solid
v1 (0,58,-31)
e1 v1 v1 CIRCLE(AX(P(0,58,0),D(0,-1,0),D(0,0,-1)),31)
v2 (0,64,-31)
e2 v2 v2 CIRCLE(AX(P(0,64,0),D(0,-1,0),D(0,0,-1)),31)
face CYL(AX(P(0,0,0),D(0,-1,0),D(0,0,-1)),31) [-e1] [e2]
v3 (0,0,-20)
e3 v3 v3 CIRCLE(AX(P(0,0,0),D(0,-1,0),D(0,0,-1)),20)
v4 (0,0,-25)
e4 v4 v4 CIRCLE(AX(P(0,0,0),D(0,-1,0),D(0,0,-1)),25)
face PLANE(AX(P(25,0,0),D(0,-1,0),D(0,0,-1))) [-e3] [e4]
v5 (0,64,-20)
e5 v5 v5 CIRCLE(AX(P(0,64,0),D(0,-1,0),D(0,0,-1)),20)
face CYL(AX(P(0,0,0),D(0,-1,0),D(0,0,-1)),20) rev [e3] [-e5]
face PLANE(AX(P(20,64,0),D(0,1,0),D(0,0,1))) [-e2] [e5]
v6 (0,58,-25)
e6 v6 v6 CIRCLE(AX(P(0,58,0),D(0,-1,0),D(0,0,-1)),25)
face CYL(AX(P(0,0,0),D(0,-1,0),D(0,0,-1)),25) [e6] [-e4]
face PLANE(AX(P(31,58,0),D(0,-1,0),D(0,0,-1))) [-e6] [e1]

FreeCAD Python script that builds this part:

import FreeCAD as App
import Part
import Sketcher

V = App.Vector
Q = App.Units.Quantity


def add_polygon(sketch, points):
    """Adds a closed chain of lines whose ends are joined by coincident constraints."""
    first, n = sketch.GeometryCount, len(points)
    for a, b in zip(points, points[1:] + points[:1]):
        sketch.addGeometry(Part.LineSegment(App.Vector(*a, 0), App.Vector(*b, 0)), False)
    for i in range(n):
        sketch.addConstraint(Sketcher.Constraint("Coincident", first + i, 2, first + (i + 1) % n, 1))

doc = App.newDocument("Part")
body = doc.addObject("PartDesign::Body", "Body")

# Sketch on XY plane
sketch1 = body.newObject("Sketcher::SketchObject", "Sketch")
sketch1.AttachmentSupport = (doc.getObject("XY_Plane"), [""])
sketch1.MapMode = "FlatFace"
add_polygon(sketch1, [(20, 64), (20, 0), (25, 0), (25, 58), (31, 58), (31, 64)])  # lines 0-5
sketch1.addConstraint([
    Sketcher.Constraint("Vertical", 0),
    Sketcher.Constraint("Horizontal", 1),
    Sketcher.Constraint("Vertical", 2),
    Sketcher.Constraint("Horizontal", 3),
    Sketcher.Constraint("Vertical", 4),
    Sketcher.Constraint("Horizontal", 5),
    Sketcher.Constraint("PointOnObject", 0, 2, -1),
    Sketcher.Constraint("Equal", 3, 4),
    Sketcher.Constraint("DistanceX", 1, 1, 1, 2, Q("5 mm")),
    Sketcher.Constraint("DistanceX", 3, 1, 3, 2, Q("6 mm")),
    Sketcher.Constraint("DistanceY", 0, 2, 0, 1, Q("64 mm")),
    Sketcher.Constraint("DistanceX", -1, 1, 0, 2, Q("20 mm")),
])
revolution = body.newObject("PartDesign::Revolution", "Revolution")
revolution.Profile = sketch1
revolution.ReferenceAxis = (sketch1, ["V_Axis"])
revolution.Angle = 360

doc.recompute()
